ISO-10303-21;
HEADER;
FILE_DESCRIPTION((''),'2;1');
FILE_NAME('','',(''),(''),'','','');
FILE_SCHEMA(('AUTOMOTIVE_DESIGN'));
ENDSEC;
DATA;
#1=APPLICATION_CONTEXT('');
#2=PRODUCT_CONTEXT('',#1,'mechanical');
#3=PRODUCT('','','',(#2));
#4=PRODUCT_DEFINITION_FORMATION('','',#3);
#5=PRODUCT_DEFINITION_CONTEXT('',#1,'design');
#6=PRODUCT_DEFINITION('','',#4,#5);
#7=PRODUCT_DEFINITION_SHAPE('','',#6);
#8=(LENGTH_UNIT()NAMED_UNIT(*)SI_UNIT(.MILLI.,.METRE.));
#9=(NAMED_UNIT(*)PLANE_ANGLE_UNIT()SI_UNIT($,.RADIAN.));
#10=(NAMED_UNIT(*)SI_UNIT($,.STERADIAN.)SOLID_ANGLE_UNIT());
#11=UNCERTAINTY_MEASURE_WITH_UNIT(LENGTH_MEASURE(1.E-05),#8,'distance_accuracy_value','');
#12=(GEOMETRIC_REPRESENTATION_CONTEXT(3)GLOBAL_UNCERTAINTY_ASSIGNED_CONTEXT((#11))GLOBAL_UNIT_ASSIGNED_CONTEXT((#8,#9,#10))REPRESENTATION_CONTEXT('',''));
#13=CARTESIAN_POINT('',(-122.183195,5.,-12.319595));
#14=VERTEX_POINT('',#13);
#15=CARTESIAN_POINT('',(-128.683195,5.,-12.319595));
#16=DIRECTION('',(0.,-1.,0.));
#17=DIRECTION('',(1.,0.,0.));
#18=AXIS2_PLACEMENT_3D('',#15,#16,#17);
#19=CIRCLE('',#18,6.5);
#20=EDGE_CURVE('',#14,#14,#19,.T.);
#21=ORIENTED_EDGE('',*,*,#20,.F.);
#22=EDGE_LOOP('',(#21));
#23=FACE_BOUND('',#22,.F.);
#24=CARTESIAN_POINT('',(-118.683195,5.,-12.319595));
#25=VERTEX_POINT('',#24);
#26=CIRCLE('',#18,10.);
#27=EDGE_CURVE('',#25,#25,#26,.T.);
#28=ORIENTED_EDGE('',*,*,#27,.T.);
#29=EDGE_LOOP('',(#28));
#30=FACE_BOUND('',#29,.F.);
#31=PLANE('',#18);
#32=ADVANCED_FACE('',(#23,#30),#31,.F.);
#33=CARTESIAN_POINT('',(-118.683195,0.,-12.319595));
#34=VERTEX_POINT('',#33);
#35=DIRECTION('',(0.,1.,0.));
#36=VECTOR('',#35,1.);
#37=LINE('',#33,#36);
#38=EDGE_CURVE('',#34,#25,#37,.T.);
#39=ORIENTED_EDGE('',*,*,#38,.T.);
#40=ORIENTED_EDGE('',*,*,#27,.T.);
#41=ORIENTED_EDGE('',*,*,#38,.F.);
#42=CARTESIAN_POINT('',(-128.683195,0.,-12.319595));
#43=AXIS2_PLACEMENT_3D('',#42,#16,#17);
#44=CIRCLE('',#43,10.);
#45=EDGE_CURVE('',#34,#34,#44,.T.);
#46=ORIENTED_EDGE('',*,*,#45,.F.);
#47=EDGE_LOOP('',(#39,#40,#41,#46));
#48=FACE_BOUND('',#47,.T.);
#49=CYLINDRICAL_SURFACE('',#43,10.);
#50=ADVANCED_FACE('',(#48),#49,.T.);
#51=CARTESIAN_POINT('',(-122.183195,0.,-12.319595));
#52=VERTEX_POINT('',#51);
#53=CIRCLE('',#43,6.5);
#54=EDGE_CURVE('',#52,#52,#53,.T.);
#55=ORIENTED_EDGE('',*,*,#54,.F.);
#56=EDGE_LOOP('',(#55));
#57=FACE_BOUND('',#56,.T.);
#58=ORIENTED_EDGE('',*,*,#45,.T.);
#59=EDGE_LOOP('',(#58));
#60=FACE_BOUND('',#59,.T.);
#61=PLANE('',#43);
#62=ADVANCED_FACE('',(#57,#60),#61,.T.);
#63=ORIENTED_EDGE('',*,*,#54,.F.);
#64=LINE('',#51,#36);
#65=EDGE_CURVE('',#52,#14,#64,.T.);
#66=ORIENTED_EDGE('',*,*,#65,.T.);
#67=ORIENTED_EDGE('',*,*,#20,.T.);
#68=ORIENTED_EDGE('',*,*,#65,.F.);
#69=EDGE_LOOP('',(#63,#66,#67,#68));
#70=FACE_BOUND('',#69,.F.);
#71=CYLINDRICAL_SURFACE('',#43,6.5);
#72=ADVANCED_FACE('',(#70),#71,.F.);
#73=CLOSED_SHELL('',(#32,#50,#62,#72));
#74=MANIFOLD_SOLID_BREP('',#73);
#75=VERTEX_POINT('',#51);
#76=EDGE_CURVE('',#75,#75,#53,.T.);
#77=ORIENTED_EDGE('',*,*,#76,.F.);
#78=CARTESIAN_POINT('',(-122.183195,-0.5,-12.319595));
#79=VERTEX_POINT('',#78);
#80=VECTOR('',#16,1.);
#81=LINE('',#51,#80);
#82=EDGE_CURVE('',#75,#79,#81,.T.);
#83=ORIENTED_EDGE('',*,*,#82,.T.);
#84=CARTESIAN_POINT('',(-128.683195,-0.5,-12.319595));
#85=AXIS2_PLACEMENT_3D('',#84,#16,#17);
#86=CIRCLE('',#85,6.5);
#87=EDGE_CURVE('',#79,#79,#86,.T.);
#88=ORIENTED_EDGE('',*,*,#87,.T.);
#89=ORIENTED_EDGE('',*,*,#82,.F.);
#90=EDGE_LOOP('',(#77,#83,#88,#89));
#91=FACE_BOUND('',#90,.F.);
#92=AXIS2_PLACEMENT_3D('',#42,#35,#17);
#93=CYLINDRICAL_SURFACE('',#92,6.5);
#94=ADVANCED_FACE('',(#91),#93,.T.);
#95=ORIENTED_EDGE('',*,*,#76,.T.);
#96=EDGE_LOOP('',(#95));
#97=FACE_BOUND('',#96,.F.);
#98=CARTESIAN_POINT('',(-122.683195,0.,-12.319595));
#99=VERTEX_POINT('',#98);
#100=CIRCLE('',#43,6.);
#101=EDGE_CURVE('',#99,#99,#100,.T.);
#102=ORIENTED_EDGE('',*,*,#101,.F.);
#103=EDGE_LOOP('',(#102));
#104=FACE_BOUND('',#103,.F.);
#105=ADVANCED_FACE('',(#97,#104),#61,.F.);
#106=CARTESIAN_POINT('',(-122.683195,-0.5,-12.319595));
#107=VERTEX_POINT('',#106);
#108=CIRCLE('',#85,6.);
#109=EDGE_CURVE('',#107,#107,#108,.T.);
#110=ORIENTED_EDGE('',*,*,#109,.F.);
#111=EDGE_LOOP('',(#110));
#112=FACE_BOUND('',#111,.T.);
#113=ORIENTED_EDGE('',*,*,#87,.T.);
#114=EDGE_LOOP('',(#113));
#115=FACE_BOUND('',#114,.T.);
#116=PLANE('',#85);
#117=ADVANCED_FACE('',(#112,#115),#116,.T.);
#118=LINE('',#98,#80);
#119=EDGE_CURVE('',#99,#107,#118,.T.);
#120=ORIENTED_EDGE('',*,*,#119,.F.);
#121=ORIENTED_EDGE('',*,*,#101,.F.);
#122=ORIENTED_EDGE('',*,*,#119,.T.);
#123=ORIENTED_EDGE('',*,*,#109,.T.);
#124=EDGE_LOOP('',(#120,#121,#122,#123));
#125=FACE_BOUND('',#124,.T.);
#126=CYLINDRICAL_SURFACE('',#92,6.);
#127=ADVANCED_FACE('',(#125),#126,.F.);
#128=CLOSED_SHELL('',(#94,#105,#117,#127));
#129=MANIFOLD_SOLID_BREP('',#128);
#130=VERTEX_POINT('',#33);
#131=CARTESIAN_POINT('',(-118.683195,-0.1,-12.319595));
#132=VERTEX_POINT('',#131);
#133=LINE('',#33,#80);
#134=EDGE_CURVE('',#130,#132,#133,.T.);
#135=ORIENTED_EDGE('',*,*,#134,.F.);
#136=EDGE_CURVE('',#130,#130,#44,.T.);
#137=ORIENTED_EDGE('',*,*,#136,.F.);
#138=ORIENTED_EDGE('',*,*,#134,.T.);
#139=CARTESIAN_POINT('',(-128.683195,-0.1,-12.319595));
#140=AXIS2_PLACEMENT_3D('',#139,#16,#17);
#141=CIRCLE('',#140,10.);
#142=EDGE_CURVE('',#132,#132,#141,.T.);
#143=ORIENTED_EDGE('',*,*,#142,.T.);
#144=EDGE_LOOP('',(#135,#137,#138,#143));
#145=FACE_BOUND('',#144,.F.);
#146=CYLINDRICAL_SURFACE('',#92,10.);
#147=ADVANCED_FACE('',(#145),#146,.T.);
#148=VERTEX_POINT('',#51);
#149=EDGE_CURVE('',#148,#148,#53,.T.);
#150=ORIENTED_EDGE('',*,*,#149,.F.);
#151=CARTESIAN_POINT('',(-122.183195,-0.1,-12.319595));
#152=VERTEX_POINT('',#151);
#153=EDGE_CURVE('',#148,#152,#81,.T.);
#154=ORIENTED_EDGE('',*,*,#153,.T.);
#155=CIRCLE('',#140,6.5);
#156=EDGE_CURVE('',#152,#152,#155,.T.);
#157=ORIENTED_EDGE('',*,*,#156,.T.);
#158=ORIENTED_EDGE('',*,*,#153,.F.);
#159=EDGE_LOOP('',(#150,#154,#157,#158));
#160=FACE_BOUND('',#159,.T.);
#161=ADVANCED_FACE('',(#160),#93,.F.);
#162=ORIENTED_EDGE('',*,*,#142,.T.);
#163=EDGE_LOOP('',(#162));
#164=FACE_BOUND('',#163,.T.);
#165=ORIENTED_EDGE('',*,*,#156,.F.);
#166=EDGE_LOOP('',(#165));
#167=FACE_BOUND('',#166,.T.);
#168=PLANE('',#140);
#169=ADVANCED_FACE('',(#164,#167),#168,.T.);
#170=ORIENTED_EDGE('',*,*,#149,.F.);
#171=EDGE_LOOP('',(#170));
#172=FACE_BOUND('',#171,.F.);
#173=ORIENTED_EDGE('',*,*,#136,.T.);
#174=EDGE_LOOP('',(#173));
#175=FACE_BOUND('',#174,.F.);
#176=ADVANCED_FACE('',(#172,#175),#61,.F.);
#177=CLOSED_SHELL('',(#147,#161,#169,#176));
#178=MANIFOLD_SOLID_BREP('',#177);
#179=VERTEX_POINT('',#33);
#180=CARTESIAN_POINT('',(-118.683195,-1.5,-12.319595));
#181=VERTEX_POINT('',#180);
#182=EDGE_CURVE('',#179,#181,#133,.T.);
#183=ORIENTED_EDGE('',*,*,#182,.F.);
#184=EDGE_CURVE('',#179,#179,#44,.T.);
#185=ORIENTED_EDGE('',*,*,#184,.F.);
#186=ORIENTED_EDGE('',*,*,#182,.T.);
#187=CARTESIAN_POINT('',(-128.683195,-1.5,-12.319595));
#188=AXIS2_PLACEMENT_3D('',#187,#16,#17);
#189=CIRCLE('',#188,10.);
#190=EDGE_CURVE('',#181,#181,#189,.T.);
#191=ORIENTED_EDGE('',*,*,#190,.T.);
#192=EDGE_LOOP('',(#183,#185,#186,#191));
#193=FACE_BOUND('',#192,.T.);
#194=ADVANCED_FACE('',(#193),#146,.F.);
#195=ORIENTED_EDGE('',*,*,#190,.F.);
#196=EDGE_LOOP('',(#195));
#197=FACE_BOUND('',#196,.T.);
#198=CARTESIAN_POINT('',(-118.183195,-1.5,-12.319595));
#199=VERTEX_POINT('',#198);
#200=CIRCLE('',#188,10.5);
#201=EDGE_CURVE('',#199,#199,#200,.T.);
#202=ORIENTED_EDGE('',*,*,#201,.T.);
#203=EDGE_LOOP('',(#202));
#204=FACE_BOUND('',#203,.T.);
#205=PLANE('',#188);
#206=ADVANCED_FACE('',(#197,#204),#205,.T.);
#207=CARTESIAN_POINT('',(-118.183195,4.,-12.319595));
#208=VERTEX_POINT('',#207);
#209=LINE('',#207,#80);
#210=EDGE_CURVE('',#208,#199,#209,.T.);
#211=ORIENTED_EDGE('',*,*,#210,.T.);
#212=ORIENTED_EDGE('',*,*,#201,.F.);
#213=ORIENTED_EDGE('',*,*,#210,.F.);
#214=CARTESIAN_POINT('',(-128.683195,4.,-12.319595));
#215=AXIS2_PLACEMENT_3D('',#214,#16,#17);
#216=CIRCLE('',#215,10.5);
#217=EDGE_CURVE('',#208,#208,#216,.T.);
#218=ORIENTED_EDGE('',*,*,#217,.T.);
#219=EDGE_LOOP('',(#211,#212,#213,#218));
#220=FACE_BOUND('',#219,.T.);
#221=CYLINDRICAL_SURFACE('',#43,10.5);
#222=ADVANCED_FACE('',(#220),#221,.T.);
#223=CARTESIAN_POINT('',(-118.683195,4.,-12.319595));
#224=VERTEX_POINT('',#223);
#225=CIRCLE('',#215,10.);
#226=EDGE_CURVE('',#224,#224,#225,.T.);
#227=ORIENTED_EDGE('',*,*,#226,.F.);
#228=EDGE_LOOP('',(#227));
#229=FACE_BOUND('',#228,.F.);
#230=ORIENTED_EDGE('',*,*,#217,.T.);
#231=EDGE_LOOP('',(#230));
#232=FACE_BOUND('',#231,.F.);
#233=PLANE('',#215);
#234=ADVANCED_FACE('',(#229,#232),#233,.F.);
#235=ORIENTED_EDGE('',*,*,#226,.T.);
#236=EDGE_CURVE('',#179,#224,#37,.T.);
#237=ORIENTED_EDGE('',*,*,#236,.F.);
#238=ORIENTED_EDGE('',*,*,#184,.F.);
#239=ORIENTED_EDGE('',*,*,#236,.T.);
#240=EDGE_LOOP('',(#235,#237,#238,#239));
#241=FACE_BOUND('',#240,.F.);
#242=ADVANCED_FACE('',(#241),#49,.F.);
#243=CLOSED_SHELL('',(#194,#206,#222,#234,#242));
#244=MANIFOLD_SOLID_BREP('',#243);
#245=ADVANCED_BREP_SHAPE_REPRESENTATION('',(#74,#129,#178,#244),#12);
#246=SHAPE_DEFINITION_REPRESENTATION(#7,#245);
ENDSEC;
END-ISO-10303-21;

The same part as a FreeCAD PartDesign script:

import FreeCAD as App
import Part
import Sketcher
from FreeCAD import Vector

doc = App.newDocument("Part")
body = doc.addObject("PartDesign::Body", "Body")

# Sketch on XZ plane
sketch1 = doc.addObject("Sketcher::SketchObject", "Sketch")
body.addObject(sketch1)
sketch1.AttachmentSupport = (doc.XZ_Plane, [""])
sketch1.MapMode = "FlatFace"
sketch1.addGeometry([
    Part.Circle(Vector(-128.683195, -12.319595, 0), Vector(0, 0, 1), 10.5),
    Part.Circle(Vector(-128.683195, -12.319595, 0), Vector(0, 0, 1), 10),
], False)
sketch1.addConstraint([
    Sketcher.Constraint("Coincident", 1, 3, 0, 3),
    Sketcher.Constraint("Diameter", 0, 21.0),
    Sketcher.Constraint("Diameter", 1, 20.0),
    Sketcher.Constraint("DistanceX", 0, 3, -1, 1, 128.683195),
    Sketcher.Constraint("DistanceY", 0, 3, -1, 1, 12.319595),
])
pad1 = doc.addObject("PartDesign::Pad", "Pad")
body.addObject(pad1)
pad1.Profile = sketch1
pad1.Type = "TwoLengths"
pad1.Length = 1.5
pad1.Length2 = 4
body2 = doc.addObject("PartDesign::Body", "Body001")

# Sketch on XZ plane
sketch2 = doc.addObject("Sketcher::SketchObject", "Sketch001")
body2.addObject(sketch2)
sketch2.AttachmentSupport = (doc.getObject("XZ_Plane001"), [""])
sketch2.MapMode = "FlatFace"
sketch2.addGeometry([
    Part.Circle(Vector(-128.683195, -12.319595, 0), Vector(0, 0, 1), 6.5),
    Part.Circle(Vector(-128.683195, -12.319595, 0), Vector(0, 0, 1), 6),
], False)
sketch2.addConstraint([
    Sketcher.Constraint("Coincident", 1, 3, 0, 3),
    Sketcher.Constraint("Diameter", 0, 13.0),
    Sketcher.Constraint("Diameter", 1, 12.0),
    Sketcher.Constraint("DistanceX", 0, 3, -1, 1, 128.683195),
    Sketcher.Constraint("DistanceY", 0, 3, -1, 1, 12.319595),
])
pad2 = doc.addObject("PartDesign::Pad", "Pad001")
body2.addObject(pad2)
pad2.Profile = sketch2
pad2.Length = 0.5
body3 = doc.addObject("PartDesign::Body", "Body002")

# Sketch on XZ plane
sketch3 = doc.addObject("Sketcher::SketchObject", "Sketch002")
body3.addObject(sketch3)
sketch3.AttachmentSupport = (doc.getObject("XZ_Plane002"), [""])
sketch3.MapMode = "FlatFace"
sketch3.addGeometry([
    Part.Circle(Vector(-128.683195, -12.319595, 0), Vector(0, 0, 1), 10),
    Part.Circle(Vector(-128.683195, -12.319595, 0), Vector(0, 0, 1), 6.5),
], False)
sketch3.addConstraint([
    Sketcher.Constraint("Coincident", 1, 3, 0, 3),
    Sketcher.Constraint("Diameter", 0, 20.0),
    Sketcher.Constraint("Diameter", 1, 13.0),
    Sketcher.Constraint("DistanceX", 0, 3, -1, 1, 128.683195),
    Sketcher.Constraint("DistanceY", 0, 3, -1, 1, 12.319595),
])
pad3 = doc.addObject("PartDesign::Pad", "Pad002")
body3.addObject(pad3)
pad3.Profile = sketch3
pad3.Length = 0.1
body4 = doc.addObject("PartDesign::Body", "Body003")

# Sketch on XZ plane
sketch4 = doc.addObject("Sketcher::SketchObject", "Sketch003")
body4.addObject(sketch4)
sketch4.AttachmentSupport = (doc.getObject("XZ_Plane003"), [""])
sketch4.MapMode = "FlatFace"
sketch4.addGeometry([
    Part.Circle(Vector(-128.683195, -12.319595, 0), Vector(0, 0, 1), 10),
    Part.Circle(Vector(-128.683195, -12.319595, 0), Vector(0, 0, 1), 6.5),
], False)
sketch4.addConstraint([
    Sketcher.Constraint("Coincident", 1, 3, 0, 3),
    Sketcher.Constraint("Diameter", 0, 20.0),
    Sketcher.Constraint("Diameter", 1, 13.0),
    Sketcher.Constraint("DistanceX", 0, 3, -1, 1, 128.683195),
    Sketcher.Constraint("DistanceY", 0, 3, -1, 1, 12.319595),
])
pad4 = doc.addObject("PartDesign::Pad", "Pad003")
body4.addObject(pad4)
pad4.Profile = sketch4
pad4.Length = 5
pad4.Reversed = True

doc.recompute()
